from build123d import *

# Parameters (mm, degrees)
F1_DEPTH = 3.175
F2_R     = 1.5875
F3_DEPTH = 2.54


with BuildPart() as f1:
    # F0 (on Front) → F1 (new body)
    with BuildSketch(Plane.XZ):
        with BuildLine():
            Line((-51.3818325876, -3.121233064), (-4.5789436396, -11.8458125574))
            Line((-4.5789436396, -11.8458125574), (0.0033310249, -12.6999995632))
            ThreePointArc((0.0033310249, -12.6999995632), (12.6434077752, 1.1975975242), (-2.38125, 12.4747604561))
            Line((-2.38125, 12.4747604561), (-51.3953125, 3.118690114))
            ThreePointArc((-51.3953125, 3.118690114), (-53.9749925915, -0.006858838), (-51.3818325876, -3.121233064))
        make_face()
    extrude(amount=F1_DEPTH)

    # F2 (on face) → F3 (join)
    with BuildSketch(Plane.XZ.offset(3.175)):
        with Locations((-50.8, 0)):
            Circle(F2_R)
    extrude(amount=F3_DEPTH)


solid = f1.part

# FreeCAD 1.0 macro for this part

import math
import FreeCAD as App
import Part
import Sketcher
from FreeCAD import Vector
Q = App.Units.Quantity

doc = App.newDocument("Part")
params = doc.addObject("Spreadsheet::Sheet", "Params")
for row, (alias, value) in enumerate([
    ("sketch1_radius", "0.5 in"),
    ("sketch1_radius2", "0.125 in"),
    ("pad1_length", "0.125 in"),
    ("sketch2_diameter", "0.125 in"),
    ("pad2_length", "0.1 in"),
], start=1):
    params.set(f"A{row}", alias)
    params.set(f"B{row}", "=" + value)
    params.setAlias(f"B{row}", alias)

body = doc.addObject("PartDesign::Body", "Body")

# Sketch on XZ plane
sketch1 = doc.addObject("Sketcher::SketchObject", "Sketch")
body.addObject(sketch1)
sketch1.AttachmentSupport = (doc.XZ_Plane, [""])
sketch1.MapMode = "FlatFace"
sketch1.addGeometry([
    Part.LineSegment(Vector(-51.4, -3.1, 0), Vector(-4.6, -11.8, 0)),  # 0
    Part.LineSegment(Vector(-4.6, -11.8, 0), Vector(0, -12.7, 0)),  # 1
    Part.ArcOfCircle(Part.Circle(Vector(0, 0, 0), Vector(0, 0, 1), 12.7), math.radians(-90), math.radians(101)),  # 2
    Part.LineSegment(Vector(-2.4, 12.5, 0), Vector(-51.4, 3.1, 0)),  # 3
    Part.ArcOfCircle(Part.Circle(Vector(-50.8, 0, 0), Vector(0, 0, 1), 3.2), math.radians(101), math.radians(259)),  # 4
], False)
sketch1.addConstraint([
    Sketcher.Constraint("Coincident", 0, 2, 1, 1),
    Sketcher.Constraint("Coincident", 1, 2, 2, 1),
    Sketcher.Constraint("Tangent", 2, 2, 3, 1),
    Sketcher.Constraint("Tangent", 3, 2, 4, 1),
    Sketcher.Constraint("Tangent", 4, 2, 0, 1),
    Sketcher.Constraint("Coincident", 2, 3, -1, 1),
    Sketcher.Constraint("PointOnObject", 4, 3, -1),
    Sketcher.Constraint("Parallel", 0, 1),
    Sketcher.Constraint("Radius", 2, Q("0.5 in")),
    Sketcher.Constraint("DistanceX", 4, 3, -1, 1, Q("2 in")),
    Sketcher.Constraint("Radius", 4, Q("0.125 in")),
    Sketcher.Constraint("Distance", 1, Q("4.66121 mm")),
    Sketcher.Constraint("DistanceX", -1, 1, 1, 2, Q("0.003331 mm")),
])
sketch1.setExpression("Constraints[8]", "Params.sketch1_radius")
sketch1.setExpression("Constraints[10]", "Params.sketch1_radius2")
pad1 = doc.addObject("PartDesign::Pad", "Pad")
body.addObject(pad1)
pad1.Profile = sketch1
pad1.setExpression("Length", "Params.pad1_length")

# Sketch on XZ plane
sketch2 = doc.addObject("Sketcher::SketchObject", "Sketch001")
body.addObject(sketch2)
sketch2.AttachmentSupport = (doc.XZ_Plane, [""])
sketch2.MapMode = "FlatFace"
sketch2.AttachmentOffset = App.Placement(Vector(0, 0, 0.125 * 25.4), App.Rotation())
sketch2.addGeometry(Part.Circle(Vector(-50.8, 0, 0), Vector(0, 0, 1), 1.6), False)
sketch2.addConstraint([
    Sketcher.Constraint("PointOnObject", 0, 3, -1),
    Sketcher.Constraint("Diameter", 0, Q("0.125 in")),
    Sketcher.Constraint("DistanceX", 0, 3, -1, 1, Q("2 in")),
])
sketch2.setExpression("Constraints[1]", "Params.sketch2_diameter")
pad2 = doc.addObject("PartDesign::Pad", "Pad001")
body.addObject(pad2)
pad2.Profile = sketch2
pad2.setExpression("Length", "Params.pad2_length")

doc.recompute()
